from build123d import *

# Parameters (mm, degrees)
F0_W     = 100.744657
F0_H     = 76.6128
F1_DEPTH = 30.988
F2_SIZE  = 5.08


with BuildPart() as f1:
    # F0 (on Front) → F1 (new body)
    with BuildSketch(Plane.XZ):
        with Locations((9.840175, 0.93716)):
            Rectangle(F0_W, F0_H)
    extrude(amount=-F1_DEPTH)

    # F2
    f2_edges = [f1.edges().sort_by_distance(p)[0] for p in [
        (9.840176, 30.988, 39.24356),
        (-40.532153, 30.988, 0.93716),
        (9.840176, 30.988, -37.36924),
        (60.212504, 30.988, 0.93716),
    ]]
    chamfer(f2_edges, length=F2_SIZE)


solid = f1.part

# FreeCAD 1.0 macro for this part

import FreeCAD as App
import Part
import Sketcher
from FreeCAD import Vector
Q = App.Units.Quantity


def edges_at(feature, points):
    """Names of the edges that pass closest to the given points."""
    edges = feature.Shape.Edges
    near = lambda p: min(range(len(edges)), key=lambda i: edges[i].distToShape(Part.Vertex(*p))[0])
    return sorted({f"Edge{near(p) + 1}" for p in points})


def add_polygon(sketch, points):
    """Adds a closed chain of lines whose ends are joined by coincident constraints."""
    first, n = sketch.GeometryCount, len(points)
    for a, b in zip(points, points[1:] + points[:1]):
        sketch.addGeometry(Part.LineSegment(App.Vector(*a, 0), App.Vector(*b, 0)), False)
    for i in range(n):
        sketch.addConstraint(Sketcher.Constraint("Coincident", first + i, 2, first + (i + 1) % n, 1))

doc = App.newDocument("Part")
body = doc.addObject("PartDesign::Body", "Body")

# Sketch on XZ plane
sketch1 = body.newObject("Sketcher::SketchObject", "Sketch")
sketch1.AttachmentSupport = (doc.getObject("XZ_Plane"), [""])
sketch1.MapMode = "FlatFace"
add_polygon(sketch1, [(-41, 39), (-41, -37), (60, -37), (60, 39)])  # lines 0-3
sketch1.addConstraint(Sketcher.Constraint("Vertical", 0))
sketch1.addConstraint(Sketcher.Constraint("Horizontal", 1))
sketch1.addConstraint(Sketcher.Constraint("Vertical", 2))
sketch1.addConstraint(Sketcher.Constraint("Horizontal", 3))
sketch1.addConstraint(Sketcher.Constraint("DistanceY", 0, 2, 0, 1, 76.6128))
sketch1.addConstraint(Sketcher.Constraint("DistanceX", 1, 1, 1, 2, 100.744657))
sketch1.addConstraint(Sketcher.Constraint("DistanceY", 0, 2, -1, 1, 37.36924))
sketch1.addConstraint(Sketcher.Constraint("DistanceX", 0, 2, -1, 1, 40.532153))
pad1 = body.newObject("PartDesign::Pad", "Pad")
pad1.Profile = sketch1
pad1.Length = Q("1.22 in")
pad1.Reversed = True
doc.recompute()

chamfer = body.newObject("PartDesign::Chamfer", "Chamfer")
chamfer.Base = (pad1, edges_at(pad1, [
    (9.84, 30.988, 39.244),
    (-40.532, 30.988, 0.937),
    (9.84, 30.988, -37.369),
    (60.213, 30.988, 0.937),
]))
chamfer.Size = Q("0.2 in")

doc.recompute()
